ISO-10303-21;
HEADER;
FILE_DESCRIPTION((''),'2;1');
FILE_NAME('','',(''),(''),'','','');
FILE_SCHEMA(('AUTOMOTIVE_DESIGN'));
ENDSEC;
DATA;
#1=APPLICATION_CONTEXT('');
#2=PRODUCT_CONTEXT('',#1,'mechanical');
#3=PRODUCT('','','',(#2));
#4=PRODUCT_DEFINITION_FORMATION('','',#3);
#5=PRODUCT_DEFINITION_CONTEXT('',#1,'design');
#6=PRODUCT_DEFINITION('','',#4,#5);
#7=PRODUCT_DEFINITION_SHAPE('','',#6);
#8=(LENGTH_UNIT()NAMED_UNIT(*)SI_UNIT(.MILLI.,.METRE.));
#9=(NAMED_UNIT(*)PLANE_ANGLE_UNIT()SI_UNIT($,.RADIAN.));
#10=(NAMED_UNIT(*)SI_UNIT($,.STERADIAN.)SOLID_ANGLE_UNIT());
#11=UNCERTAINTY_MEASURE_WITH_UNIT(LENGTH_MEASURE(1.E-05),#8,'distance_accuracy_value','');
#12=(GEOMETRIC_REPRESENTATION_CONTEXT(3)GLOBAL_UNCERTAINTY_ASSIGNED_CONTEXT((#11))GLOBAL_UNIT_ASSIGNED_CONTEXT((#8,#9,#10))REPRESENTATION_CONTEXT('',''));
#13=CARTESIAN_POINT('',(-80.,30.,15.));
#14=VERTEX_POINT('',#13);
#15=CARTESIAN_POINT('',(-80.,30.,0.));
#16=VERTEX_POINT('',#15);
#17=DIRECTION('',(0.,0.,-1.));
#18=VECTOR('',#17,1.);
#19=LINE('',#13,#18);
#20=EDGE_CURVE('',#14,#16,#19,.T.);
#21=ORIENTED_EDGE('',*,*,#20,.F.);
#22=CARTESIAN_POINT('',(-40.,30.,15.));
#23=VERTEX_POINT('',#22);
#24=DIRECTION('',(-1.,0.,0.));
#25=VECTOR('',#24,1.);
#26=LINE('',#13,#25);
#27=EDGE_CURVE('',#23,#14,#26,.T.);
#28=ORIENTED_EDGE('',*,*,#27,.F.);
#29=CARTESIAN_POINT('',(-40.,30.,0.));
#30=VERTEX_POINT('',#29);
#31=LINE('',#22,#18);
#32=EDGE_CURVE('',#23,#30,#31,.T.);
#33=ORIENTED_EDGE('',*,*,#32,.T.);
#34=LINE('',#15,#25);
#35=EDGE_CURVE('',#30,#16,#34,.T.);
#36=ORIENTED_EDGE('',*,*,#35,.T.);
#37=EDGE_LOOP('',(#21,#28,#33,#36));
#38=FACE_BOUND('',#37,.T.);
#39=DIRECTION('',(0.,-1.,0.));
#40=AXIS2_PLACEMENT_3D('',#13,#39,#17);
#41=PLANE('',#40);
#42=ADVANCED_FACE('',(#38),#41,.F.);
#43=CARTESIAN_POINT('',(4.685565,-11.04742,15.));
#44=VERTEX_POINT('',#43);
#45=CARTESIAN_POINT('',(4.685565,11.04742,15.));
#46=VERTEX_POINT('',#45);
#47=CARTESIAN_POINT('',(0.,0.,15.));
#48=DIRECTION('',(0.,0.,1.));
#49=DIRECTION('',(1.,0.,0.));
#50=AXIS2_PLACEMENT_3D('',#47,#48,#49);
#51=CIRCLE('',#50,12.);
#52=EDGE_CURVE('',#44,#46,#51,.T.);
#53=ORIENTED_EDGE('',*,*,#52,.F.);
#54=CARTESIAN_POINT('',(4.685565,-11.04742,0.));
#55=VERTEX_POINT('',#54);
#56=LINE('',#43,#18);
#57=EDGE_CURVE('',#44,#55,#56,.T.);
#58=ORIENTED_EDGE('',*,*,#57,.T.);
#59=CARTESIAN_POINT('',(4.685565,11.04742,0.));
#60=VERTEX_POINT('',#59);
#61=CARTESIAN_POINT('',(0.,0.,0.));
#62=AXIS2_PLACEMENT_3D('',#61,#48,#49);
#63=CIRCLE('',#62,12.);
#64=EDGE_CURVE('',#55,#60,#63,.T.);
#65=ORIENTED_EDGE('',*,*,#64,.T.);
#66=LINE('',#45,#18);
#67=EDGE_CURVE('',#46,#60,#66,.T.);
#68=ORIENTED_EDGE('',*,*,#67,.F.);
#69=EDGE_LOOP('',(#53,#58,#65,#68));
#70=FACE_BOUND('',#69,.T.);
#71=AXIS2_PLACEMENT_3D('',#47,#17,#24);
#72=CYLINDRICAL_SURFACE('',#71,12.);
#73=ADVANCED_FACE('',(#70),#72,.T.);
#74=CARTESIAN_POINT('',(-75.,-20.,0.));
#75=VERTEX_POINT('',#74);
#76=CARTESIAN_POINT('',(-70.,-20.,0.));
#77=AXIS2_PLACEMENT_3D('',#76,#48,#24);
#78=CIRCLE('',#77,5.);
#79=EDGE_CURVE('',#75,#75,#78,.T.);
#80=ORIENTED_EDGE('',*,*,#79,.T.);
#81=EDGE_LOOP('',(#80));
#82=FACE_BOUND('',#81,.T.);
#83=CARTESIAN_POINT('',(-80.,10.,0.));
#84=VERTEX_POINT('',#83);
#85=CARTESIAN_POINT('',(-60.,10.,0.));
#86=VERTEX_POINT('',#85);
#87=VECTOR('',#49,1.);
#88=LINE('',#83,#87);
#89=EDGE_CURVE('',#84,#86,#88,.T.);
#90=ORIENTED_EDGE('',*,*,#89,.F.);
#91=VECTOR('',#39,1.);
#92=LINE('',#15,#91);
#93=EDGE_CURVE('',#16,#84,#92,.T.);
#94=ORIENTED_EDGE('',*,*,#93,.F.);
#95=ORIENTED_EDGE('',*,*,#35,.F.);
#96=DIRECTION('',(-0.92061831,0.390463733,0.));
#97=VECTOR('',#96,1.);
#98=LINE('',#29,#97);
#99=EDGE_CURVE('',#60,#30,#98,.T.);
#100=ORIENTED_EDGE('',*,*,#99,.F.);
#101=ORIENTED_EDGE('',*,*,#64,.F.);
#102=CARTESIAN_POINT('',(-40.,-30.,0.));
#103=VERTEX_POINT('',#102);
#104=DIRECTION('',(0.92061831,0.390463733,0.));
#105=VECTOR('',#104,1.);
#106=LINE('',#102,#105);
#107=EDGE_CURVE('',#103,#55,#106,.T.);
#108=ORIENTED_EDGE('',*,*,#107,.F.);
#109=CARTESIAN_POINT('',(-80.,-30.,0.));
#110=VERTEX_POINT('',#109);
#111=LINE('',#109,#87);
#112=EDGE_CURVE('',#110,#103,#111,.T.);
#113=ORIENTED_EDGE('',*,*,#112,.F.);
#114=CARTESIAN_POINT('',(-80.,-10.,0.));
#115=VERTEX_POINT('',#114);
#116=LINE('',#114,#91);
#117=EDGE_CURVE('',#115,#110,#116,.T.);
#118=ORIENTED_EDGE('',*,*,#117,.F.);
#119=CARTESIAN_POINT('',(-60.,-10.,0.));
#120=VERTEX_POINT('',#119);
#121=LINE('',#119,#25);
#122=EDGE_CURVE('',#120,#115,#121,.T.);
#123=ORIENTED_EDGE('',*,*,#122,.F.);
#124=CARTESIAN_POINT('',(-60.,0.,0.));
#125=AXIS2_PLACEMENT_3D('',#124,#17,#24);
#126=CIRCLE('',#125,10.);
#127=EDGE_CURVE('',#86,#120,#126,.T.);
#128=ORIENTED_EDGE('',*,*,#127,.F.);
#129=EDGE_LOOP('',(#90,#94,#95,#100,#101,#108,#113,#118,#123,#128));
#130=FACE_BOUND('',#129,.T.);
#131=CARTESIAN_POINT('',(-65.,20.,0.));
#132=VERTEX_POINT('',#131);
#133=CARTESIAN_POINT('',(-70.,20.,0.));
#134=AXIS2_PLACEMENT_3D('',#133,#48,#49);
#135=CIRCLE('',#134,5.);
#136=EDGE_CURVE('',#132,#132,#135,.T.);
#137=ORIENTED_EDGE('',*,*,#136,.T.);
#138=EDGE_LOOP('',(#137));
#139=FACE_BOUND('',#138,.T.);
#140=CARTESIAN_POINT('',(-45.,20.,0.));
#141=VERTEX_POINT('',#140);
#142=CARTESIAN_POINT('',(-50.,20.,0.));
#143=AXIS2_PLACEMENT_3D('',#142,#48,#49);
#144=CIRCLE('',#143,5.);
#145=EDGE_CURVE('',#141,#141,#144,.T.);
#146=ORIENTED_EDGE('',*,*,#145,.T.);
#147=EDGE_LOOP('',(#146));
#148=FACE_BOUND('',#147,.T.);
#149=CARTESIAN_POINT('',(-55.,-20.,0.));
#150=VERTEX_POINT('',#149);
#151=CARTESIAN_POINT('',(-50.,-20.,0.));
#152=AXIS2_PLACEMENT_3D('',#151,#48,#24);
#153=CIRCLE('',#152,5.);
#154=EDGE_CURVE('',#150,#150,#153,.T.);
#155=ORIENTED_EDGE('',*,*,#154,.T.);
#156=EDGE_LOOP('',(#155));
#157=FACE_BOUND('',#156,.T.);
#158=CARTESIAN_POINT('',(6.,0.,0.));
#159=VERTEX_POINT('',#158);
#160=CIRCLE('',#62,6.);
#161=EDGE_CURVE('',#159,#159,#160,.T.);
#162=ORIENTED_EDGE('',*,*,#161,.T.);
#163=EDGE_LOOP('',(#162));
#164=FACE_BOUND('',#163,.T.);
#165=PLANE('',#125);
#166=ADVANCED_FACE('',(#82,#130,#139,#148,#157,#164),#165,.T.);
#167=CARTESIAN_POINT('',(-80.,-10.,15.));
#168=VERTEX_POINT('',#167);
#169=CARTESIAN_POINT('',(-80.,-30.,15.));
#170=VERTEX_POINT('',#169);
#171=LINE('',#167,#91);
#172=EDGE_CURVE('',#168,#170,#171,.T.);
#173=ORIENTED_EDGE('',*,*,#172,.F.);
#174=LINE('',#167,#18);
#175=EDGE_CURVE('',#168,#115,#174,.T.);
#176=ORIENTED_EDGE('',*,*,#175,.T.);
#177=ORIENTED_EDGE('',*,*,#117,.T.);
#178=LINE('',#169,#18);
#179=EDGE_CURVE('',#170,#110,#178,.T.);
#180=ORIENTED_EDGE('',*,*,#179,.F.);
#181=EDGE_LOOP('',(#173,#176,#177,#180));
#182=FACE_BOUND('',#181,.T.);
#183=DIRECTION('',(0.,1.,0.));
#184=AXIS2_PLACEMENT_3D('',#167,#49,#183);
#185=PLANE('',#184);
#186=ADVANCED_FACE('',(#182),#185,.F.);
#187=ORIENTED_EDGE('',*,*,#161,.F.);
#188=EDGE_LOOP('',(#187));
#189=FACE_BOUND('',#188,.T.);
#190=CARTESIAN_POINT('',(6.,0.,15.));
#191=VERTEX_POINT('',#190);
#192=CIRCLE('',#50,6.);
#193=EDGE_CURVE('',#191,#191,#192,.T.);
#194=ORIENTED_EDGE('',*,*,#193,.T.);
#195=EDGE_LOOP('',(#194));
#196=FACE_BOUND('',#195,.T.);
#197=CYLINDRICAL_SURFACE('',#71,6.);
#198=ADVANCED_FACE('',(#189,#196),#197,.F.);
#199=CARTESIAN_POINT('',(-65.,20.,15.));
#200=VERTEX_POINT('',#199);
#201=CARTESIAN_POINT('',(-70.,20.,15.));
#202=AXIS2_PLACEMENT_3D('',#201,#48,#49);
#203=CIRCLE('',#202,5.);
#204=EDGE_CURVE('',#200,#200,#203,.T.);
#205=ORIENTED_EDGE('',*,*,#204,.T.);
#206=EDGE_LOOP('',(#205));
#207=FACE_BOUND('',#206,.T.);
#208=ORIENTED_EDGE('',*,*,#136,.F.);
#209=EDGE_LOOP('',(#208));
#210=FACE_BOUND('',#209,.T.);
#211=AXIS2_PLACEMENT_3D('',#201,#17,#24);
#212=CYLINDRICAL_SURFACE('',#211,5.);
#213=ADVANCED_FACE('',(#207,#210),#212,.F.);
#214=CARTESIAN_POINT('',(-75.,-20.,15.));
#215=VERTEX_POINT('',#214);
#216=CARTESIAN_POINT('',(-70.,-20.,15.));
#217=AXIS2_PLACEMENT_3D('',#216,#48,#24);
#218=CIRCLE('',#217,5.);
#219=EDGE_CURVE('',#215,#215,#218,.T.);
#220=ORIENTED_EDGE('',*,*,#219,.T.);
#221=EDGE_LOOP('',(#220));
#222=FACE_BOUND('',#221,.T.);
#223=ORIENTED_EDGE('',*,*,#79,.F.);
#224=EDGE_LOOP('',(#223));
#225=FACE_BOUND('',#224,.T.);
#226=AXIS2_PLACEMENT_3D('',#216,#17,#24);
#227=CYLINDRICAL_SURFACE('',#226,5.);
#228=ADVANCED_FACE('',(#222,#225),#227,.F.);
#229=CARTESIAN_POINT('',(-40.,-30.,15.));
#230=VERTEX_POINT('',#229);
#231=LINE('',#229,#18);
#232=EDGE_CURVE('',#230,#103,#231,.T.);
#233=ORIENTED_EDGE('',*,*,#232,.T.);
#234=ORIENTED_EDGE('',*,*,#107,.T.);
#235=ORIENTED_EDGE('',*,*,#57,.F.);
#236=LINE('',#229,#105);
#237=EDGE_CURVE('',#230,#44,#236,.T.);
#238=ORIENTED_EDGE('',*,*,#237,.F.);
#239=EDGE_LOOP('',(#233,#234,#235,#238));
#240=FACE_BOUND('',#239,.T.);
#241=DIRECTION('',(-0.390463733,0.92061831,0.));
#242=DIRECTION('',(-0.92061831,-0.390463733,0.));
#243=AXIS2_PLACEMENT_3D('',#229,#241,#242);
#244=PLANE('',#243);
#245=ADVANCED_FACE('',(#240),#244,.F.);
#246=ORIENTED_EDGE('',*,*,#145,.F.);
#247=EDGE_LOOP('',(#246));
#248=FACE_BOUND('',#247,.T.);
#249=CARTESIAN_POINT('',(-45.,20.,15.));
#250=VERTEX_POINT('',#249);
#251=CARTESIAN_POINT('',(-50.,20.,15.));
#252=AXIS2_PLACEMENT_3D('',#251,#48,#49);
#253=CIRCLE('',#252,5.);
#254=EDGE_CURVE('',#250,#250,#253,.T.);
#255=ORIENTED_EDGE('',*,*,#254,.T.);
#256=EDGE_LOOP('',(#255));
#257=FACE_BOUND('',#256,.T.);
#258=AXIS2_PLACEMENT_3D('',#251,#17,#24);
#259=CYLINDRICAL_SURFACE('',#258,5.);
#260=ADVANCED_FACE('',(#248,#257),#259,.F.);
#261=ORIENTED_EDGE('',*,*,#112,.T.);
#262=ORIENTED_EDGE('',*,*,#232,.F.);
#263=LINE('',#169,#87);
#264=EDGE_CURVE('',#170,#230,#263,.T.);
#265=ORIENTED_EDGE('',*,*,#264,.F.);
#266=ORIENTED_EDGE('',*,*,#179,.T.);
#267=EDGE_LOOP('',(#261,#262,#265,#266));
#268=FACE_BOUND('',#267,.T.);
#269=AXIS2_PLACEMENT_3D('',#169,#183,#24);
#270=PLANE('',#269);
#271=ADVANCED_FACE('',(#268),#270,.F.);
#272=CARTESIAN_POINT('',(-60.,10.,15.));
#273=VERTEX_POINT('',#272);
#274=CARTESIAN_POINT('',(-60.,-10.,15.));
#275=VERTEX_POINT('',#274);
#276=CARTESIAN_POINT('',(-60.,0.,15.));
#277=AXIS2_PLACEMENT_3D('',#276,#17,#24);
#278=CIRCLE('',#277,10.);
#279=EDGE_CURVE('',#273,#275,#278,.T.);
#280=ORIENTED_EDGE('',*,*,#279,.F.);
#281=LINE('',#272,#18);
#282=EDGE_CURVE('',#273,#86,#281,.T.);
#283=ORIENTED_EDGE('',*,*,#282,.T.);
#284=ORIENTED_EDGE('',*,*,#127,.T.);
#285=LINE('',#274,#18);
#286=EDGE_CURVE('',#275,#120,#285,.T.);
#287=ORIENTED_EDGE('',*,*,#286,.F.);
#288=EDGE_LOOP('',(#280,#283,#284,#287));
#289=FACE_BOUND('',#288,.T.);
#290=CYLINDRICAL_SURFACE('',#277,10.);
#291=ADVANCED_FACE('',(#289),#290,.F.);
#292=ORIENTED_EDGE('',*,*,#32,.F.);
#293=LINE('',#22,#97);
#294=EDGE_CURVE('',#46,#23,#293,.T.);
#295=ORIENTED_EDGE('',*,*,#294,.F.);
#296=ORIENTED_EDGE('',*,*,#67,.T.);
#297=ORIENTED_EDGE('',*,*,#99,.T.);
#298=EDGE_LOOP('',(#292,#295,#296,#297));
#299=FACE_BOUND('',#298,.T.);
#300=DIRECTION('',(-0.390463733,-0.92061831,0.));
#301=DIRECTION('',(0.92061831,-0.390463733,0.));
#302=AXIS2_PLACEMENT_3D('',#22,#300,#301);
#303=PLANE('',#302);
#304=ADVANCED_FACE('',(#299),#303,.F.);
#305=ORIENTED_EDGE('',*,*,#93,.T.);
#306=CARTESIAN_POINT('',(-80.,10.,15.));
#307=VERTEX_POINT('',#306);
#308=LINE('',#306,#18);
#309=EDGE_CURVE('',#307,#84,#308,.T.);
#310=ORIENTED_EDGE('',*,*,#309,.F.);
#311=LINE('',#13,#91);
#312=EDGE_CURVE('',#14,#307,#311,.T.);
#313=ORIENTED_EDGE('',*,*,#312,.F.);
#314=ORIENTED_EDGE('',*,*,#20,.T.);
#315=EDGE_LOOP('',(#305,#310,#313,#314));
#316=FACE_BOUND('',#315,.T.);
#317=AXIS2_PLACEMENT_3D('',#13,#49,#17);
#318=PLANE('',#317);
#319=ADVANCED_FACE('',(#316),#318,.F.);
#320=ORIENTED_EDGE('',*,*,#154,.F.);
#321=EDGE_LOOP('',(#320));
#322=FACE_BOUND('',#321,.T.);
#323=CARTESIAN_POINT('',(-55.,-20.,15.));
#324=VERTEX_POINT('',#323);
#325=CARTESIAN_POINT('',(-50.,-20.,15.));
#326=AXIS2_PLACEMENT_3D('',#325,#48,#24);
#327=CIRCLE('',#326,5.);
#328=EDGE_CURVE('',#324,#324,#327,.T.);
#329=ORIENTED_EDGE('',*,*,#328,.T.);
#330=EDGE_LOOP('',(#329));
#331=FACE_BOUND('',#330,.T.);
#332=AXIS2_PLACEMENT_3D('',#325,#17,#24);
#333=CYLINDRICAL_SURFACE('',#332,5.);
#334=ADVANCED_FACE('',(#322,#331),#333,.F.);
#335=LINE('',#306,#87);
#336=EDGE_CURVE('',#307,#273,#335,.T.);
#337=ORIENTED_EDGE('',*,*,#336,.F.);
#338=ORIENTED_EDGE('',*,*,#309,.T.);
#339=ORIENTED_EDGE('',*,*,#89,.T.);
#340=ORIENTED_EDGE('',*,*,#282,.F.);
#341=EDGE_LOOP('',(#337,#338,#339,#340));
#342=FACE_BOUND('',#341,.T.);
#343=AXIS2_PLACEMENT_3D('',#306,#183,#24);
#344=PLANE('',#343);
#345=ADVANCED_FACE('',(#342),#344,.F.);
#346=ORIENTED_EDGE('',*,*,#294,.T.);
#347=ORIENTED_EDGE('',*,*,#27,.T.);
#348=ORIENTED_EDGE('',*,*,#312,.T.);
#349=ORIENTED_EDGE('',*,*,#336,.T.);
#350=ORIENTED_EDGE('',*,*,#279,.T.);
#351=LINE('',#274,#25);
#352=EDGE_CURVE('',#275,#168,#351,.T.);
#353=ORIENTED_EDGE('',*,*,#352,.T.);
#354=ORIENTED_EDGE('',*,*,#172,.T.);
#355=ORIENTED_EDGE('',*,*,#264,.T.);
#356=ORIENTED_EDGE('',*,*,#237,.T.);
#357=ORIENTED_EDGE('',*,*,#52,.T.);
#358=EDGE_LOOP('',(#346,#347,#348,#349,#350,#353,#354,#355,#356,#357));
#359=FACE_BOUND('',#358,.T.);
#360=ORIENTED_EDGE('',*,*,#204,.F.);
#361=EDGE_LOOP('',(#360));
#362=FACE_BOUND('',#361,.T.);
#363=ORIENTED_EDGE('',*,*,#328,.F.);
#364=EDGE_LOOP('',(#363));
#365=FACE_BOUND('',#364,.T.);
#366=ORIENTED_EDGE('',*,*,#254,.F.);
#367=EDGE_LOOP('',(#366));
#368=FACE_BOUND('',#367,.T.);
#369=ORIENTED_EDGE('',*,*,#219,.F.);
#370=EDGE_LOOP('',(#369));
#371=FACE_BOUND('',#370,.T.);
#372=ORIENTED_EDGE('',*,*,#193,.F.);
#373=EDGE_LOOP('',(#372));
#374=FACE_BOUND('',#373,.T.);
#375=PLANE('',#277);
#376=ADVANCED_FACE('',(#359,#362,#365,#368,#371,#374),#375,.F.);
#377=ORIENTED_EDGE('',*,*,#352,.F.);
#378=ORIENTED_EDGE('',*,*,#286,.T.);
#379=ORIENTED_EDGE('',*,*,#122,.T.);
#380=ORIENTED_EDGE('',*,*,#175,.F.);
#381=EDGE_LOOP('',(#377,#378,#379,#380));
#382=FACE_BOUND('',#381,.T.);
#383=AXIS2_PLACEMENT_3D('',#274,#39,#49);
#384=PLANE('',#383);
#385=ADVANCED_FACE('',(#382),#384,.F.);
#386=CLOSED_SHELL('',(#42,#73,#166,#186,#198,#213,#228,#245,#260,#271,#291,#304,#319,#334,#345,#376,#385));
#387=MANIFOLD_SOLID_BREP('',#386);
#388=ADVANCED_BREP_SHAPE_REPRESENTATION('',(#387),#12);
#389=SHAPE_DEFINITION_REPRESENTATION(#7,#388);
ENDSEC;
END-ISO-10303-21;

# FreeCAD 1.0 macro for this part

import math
import FreeCAD as App
import Part
import Sketcher

V = App.Vector

doc = App.newDocument("Part")
params = doc.addObject("Spreadsheet::Sheet", "Params")
for row, (alias, value) in enumerate([
    ("sketch1_diameter", "10 mm"),
    ("sketch1_diameter2", "12 mm"),
    ("sketch1_radius", "10 mm"),
    ("sketch1_radius2", "12 mm"),
    ("sketch1_width", "40 mm"),
    ("pad1_length", "15 mm"),
], start=1):
    params.set(f"A{row}", alias)
    params.set(f"B{row}", "=" + value)
    params.setAlias(f"B{row}", alias)

body = doc.addObject("PartDesign::Body", "Body")

sketch1 = body.newObject("Sketcher::SketchObject", "Sketch")
sketch1.AttachmentSupport = (doc.getObject("XY_Plane"), [""])
sketch1.MapMode = "FlatFace"
sketch1.addGeometry([
    Part.LineSegment(V(-40, 30, 0), V(-80, 30, 0)),
    Part.LineSegment(V(-80, 30, 0), V(-80, 10, 0)),
    Part.LineSegment(V(-80, 10, 0), V(-60, 10, 0)),
    Part.ArcOfCircle(Part.Circle(V(-60, 0, 0), V(0, 0, 1), 10), math.radians(-90), math.radians(90)),
    Part.LineSegment(V(-60, -10, 0), V(-80, -10, 0)),
    Part.LineSegment(V(-80, -10, 0), V(-80, -30, 0)),
    Part.LineSegment(V(-80, -30, 0), V(-40, -30, 0)),
    Part.LineSegment(V(-40, -30, 0), V(4.685565, -11.04742, 0)),
    Part.ArcOfCircle(Part.Circle(V(0, 0, 0), V(0, 0, 1), 12), math.radians(-67.016643), math.radians(67.016643)),
    Part.LineSegment(V(4.685565, 11.04742, 0), V(-40, 30, 0)),
    Part.Circle(V(-50, -20, 0), V(0, 0, 1), 5),
    Part.Circle(V(-70, -20, 0), V(0, 0, 1), 5),
    Part.Circle(V(0, 0, 0), V(0, 0, 1), 6),
    Part.Circle(V(-50, 20, 0), V(0, 0, 1), 5),
    Part.Circle(V(-70, 20, 0), V(0, 0, 1), 5),
], False)
sketch1.addConstraint([
    Sketcher.Constraint("Coincident", 0, 2, 1, 1),
    Sketcher.Constraint("Coincident", 1, 2, 2, 1),
    Sketcher.Constraint("Tangent", 2, 2, 3, 2),
    Sketcher.Constraint("Tangent", 3, 1, 4, 1),
    Sketcher.Constraint("Coincident", 4, 2, 5, 1),
    Sketcher.Constraint("Coincident", 5, 2, 6, 1),
    Sketcher.Constraint("Coincident", 6, 2, 7, 1),
    Sketcher.Constraint("Tangent", 7, 2, 8, 1),
    Sketcher.Constraint("Tangent", 8, 2, 9, 1),
    Sketcher.Constraint("Coincident", 9, 2, 0, 1),
    Sketcher.Constraint("Horizontal", 0),
    Sketcher.Constraint("Vertical", 1),
    Sketcher.Constraint("Horizontal", 2),
    Sketcher.Constraint("Horizontal", 4),
    Sketcher.Constraint("Vertical", 5),
    Sketcher.Constraint("Horizontal", 6),
    Sketcher.Constraint("Coincident", 8, 3, -1, 1),
    Sketcher.Constraint("Coincident", 12, 3, -1, 1),
    Sketcher.Constraint("Equal", 10, 11),
    Sketcher.Constraint("Equal", 11, 13),
    Sketcher.Constraint("Equal", 13, 14),
    Sketcher.Constraint("Symmetric", 10, 3, 13, 3, -1),
    Sketcher.Constraint("Symmetric", 11, 3, 14, 3, -1),
    Sketcher.Constraint("Symmetric", 1, 2, 4, 2, -1),
    Sketcher.Constraint("Symmetric", 6, 2, 9, 2, -1),
    Sketcher.Constraint("Horizontal", 10, 3, 11, 3),
    Sketcher.Constraint("Equal", 4, 1),
    Sketcher.Constraint("Diameter", 10, 10.0),
    Sketcher.Constraint("Diameter", 12, 12.0),
    Sketcher.Constraint("Radius", 3, 10.0),
    Sketcher.Constraint("Radius", 8, 12.0),
    Sketcher.Constraint("DistanceX", 0, 2, 0, 1, 40.0),
    Sketcher.Constraint("DistanceX", 2, 1, 2, 2, 20.0),
    Sketcher.Constraint("DistanceX", 3, 3, -1, 1, 60.0),
    Sketcher.Constraint("DistanceX", 10, 3, -1, 1, 50.0),
    Sketcher.Constraint("DistanceY", 10, 3, -1, 1, 20.0),
    Sketcher.Constraint("DistanceX", 11, 3, -1, 1, 70.0),
])
sketch1.setExpression("Constraints[27]", "Params.sketch1_diameter")
sketch1.setExpression("Constraints[28]", "Params.sketch1_diameter2")
sketch1.setExpression("Constraints[29]", "Params.sketch1_radius")
sketch1.setExpression("Constraints[30]", "Params.sketch1_radius2")
sketch1.setExpression("Constraints[31]", "Params.sketch1_width")
pad1 = body.newObject("PartDesign::Pad", "Pad")
pad1.Profile = sketch1
pad1.setExpression("Length", "Params.pad1_length")

doc.recompute()
